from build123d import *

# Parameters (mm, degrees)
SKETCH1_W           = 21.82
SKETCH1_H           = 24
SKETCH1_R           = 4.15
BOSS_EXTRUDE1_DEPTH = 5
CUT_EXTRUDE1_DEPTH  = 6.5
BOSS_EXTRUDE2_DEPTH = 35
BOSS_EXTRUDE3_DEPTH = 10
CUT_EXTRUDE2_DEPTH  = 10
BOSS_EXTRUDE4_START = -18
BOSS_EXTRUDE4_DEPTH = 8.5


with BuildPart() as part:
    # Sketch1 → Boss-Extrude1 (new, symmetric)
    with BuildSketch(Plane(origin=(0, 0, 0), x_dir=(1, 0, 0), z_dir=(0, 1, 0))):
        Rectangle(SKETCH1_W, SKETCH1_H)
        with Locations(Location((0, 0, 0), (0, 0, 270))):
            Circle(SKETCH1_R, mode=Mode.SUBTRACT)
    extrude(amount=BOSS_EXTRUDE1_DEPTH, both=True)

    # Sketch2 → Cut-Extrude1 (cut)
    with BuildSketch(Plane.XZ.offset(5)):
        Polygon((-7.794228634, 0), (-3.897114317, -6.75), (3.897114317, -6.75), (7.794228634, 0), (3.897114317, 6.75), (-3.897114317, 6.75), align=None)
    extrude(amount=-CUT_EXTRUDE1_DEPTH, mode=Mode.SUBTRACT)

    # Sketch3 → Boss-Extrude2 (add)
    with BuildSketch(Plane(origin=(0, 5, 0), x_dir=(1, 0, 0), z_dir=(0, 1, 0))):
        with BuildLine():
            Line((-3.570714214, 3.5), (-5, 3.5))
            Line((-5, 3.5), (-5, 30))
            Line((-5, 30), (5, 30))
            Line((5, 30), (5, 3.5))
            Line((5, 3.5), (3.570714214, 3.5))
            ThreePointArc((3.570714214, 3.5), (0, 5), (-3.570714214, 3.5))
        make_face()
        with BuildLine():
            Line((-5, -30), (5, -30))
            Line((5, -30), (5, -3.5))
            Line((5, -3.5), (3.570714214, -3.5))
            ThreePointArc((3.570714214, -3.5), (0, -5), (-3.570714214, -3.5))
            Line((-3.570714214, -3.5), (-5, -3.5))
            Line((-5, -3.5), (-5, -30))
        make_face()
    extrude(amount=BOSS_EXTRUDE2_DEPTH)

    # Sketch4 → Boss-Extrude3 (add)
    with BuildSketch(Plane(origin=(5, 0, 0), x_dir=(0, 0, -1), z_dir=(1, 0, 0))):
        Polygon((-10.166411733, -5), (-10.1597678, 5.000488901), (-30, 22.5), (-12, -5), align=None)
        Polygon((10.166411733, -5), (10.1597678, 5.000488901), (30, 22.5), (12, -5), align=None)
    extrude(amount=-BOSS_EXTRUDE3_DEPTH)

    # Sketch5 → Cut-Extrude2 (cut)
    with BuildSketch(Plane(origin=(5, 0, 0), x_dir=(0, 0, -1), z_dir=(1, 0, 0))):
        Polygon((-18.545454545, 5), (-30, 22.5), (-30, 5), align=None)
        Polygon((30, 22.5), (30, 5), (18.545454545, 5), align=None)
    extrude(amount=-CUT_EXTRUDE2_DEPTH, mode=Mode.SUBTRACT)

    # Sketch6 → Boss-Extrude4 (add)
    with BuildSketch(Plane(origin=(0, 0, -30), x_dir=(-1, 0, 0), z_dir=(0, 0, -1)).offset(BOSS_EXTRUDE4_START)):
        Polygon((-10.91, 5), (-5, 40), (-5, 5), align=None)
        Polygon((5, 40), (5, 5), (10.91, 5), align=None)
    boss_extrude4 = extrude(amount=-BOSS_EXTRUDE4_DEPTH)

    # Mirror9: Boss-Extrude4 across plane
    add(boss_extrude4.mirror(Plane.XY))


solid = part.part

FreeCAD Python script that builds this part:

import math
import FreeCAD as App
import Part
import Sketcher
from FreeCAD import Vector
Q = App.Units.Quantity

doc = App.newDocument("Part")
body = doc.addObject("PartDesign::Body", "Body")

sketch1 = body.newObject("Sketcher::SketchObject", "Sketch")
sketch1.AttachmentSupport = (doc.getObject("XZ_Plane"), [""])
sketch1.MapMode = "FlatFace"
sketch1.addGeometry(Part.LineSegment(Vector(-10.91, -12, 0), Vector(-10.91, 12, 0)), False)
sketch1.addGeometry(Part.LineSegment(Vector(-10.91, 12, 0), Vector(10.91, 12, 0)), False)
sketch1.addGeometry(Part.LineSegment(Vector(10.91, 12, 0), Vector(10.91, -12, 0)), False)
sketch1.addGeometry(Part.LineSegment(Vector(10.91, -12, 0), Vector(-10.91, -12, 0)), False)
sketch1.addGeometry(Part.Circle(Vector(0, 0, 0), Vector(0, 0, 1), 4.15), False)
sketch1.addConstraint(Sketcher.Constraint("Coincident", 0, 2, 1, 1))
sketch1.addConstraint(Sketcher.Constraint("Coincident", 1, 2, 2, 1))
sketch1.addConstraint(Sketcher.Constraint("Coincident", 2, 2, 3, 1))
sketch1.addConstraint(Sketcher.Constraint("Coincident", 3, 2, 0, 1))
sketch1.addConstraint(Sketcher.Constraint("Vertical", 0))
sketch1.addConstraint(Sketcher.Constraint("Horizontal", 1))
sketch1.addConstraint(Sketcher.Constraint("Vertical", 2))
sketch1.addConstraint(Sketcher.Constraint("Horizontal", 3))
sketch1.addConstraint(Sketcher.Constraint("Coincident", 4, 3, -1, 1))
sketch1.addConstraint(Sketcher.Constraint("Symmetric", 0, 2, 2, 2, -1, 1))
sketch1.addConstraint(Sketcher.Constraint("Diameter", 4, 8.3))
sketch1.addConstraint(Sketcher.Constraint("DistanceY", 0, 1, 0, 2, 24.0))
sketch1.addConstraint(Sketcher.Constraint("DistanceX", 1, 1, 1, 2, 21.82))
pad1 = body.newObject("PartDesign::Pad", "Pad")
pad1.Profile = sketch1
pad1.Length = 10
pad1.Midplane = True

sketch2 = body.newObject("Sketcher::SketchObject", "Sketch001")
sketch2.AttachmentSupport = (doc.getObject("XZ_Plane"), [""])
sketch2.MapMode = "FlatFace"
sketch2.AttachmentOffset = App.Placement(Vector(0, 0, 5), App.Rotation())
sketch2.addGeometry(Part.LineSegment(Vector(-7.794229, 0, 0), Vector(-3.897114, -6.75, 0)), False)
sketch2.addGeometry(Part.LineSegment(Vector(-3.897114, -6.75, 0), Vector(3.897114, -6.75, 0)), False)
sketch2.addGeometry(Part.LineSegment(Vector(3.897114, -6.75, 0), Vector(7.794229, 0, 0)), False)
sketch2.addGeometry(Part.LineSegment(Vector(7.794229, 0, 0), Vector(3.897114, 6.75, 0)), False)
sketch2.addGeometry(Part.LineSegment(Vector(3.897114, 6.75, 0), Vector(-3.897114, 6.75, 0)), False)
sketch2.addGeometry(Part.LineSegment(Vector(-3.897114, 6.75, 0), Vector(-7.794229, 0, 0)), False)
sketch2.addConstraint(Sketcher.Constraint("Coincident", 0, 2, 1, 1))
sketch2.addConstraint(Sketcher.Constraint("Coincident", 1, 2, 2, 1))
sketch2.addConstraint(Sketcher.Constraint("Coincident", 2, 2, 3, 1))
sketch2.addConstraint(Sketcher.Constraint("Coincident", 3, 2, 4, 1))
sketch2.addConstraint(Sketcher.Constraint("Coincident", 4, 2, 5, 1))
sketch2.addConstraint(Sketcher.Constraint("Coincident", 5, 2, 0, 1))
sketch2.addConstraint(Sketcher.Constraint("Horizontal", 1))
sketch2.addConstraint(Sketcher.Constraint("Horizontal", 4))
sketch2.addConstraint(Sketcher.Constraint("Symmetric", 0, 2, 3, 2, -1, 1))
sketch2.addConstraint(Sketcher.Constraint("Symmetric", 2, 2, 5, 2, -1, 1))
sketch2.addConstraint(Sketcher.Constraint("PointOnObject", 2, 2, -1))
sketch2.addConstraint(Sketcher.Constraint("Parallel", 2, 5))
sketch2.addConstraint(Sketcher.Constraint("Vertical", 1, 2, 3, 2))
sketch2.addConstraint(Sketcher.Constraint("Angle", 0, Q("-60 deg")))
sketch2.addConstraint(Sketcher.Constraint("DistanceY", 1, 2, 3, 2, 13.5))
sketch2.addConstraint(Sketcher.Constraint("DistanceX", 1, 1, 1, 2, 7.794229))
pocket1 = body.newObject("PartDesign::Pocket", "Pocket")
pocket1.Profile = sketch2
pocket1.Length = 6.5

sketch3 = body.newObject("Sketcher::SketchObject", "Sketch002")
sketch3.AttachmentSupport = (doc.getObject("XZ_Plane"), [""])
sketch3.MapMode = "FlatFace"
sketch3.AttachmentOffset = App.Placement(Vector(0, 0, -5), App.Rotation())
sketch3.addGeometry(Part.LineSegment(Vector(-5, -3.5, 0), Vector(-3.570714, -3.5, 0)), False)
sketch3.addGeometry(Part.ArcOfCircle(Part.Circle(Vector(0, 0, 0), Vector(0, 0, 1), 5), math.radians(-135.572996), math.radians(-44.427004)), False)
sketch3.addGeometry(Part.LineSegment(Vector(3.570714, -3.5, 0), Vector(5, -3.5, 0)), False)
sketch3.addGeometry(Part.LineSegment(Vector(5, -3.5, 0), Vector(5, -30, 0)), False)
sketch3.addGeometry(Part.LineSegment(Vector(5, -30, 0), Vector(-5, -30, 0)), False)
sketch3.addGeometry(Part.LineSegment(Vector(-5, -30, 0), Vector(-5, -3.5, 0)), False)
sketch3.addGeometry(Part.LineSegment(Vector(-5, 30, 0), Vector(5, 30, 0)), False)
sketch3.addGeometry(Part.LineSegment(Vector(5, 30, 0), Vector(5, 3.5, 0)), False)
sketch3.addGeometry(Part.LineSegment(Vector(5, 3.5, 0), Vector(3.570714, 3.5, 0)), False)
sketch3.addGeometry(Part.ArcOfCircle(Part.Circle(Vector(0, 0, 0), Vector(0, 0, 1), 5), math.radians(44.427004), math.radians(135.572996)), False)
sketch3.addGeometry(Part.LineSegment(Vector(-3.570714, 3.5, 0), Vector(-5, 3.5, 0)), False)
sketch3.addGeometry(Part.LineSegment(Vector(-5, 3.5, 0), Vector(-5, 30, 0)), False)
sketch3.addConstraint(Sketcher.Constraint("Coincident", 0, 2, 1, 1))
sketch3.addConstraint(Sketcher.Constraint("Coincident", 1, 2, 2, 1))
sketch3.addConstraint(Sketcher.Constraint("Coincident", 2, 2, 3, 1))
sketch3.addConstraint(Sketcher.Constraint("Coincident", 3, 2, 4, 1))
sketch3.addConstraint(Sketcher.Constraint("Coincident", 4, 2, 5, 1))
sketch3.addConstraint(Sketcher.Constraint("Coincident", 5, 2, 0, 1))
sketch3.addConstraint(Sketcher.Constraint("Coincident", 6, 2, 7, 1))
sketch3.addConstraint(Sketcher.Constraint("Coincident", 7, 2, 8, 1))
sketch3.addConstraint(Sketcher.Constraint("Coincident", 8, 2, 9, 1))
sketch3.addConstraint(Sketcher.Constraint("Coincident", 9, 2, 10, 1))
sketch3.addConstraint(Sketcher.Constraint("Coincident", 10, 2, 11, 1))
sketch3.addConstraint(Sketcher.Constraint("Coincident", 11, 2, 6, 1))
sketch3.addConstraint(Sketcher.Constraint("Horizontal", 0))
sketch3.addConstraint(Sketcher.Constraint("Horizontal", 2))
sketch3.addConstraint(Sketcher.Constraint("Vertical", 3))
sketch3.addConstraint(Sketcher.Constraint("Horizontal", 4))
sketch3.addConstraint(Sketcher.Constraint("Vertical", 5))
sketch3.addConstraint(Sketcher.Constraint("Horizontal", 6))
sketch3.addConstraint(Sketcher.Constraint("Vertical", 7))
sketch3.addConstraint(Sketcher.Constraint("Horizontal", 8))
sketch3.addConstraint(Sketcher.Constraint("Horizontal", 10))
sketch3.addConstraint(Sketcher.Constraint("Vertical", 11))
sketch3.addConstraint(Sketcher.Constraint("Coincident", 1, 3, -1, 1))
sketch3.addConstraint(Sketcher.Constraint("Coincident", 9, 3, -1, 1))
sketch3.addConstraint(Sketcher.Constraint("Equal", 1, 9))
sketch3.addConstraint(Sketcher.Constraint("Symmetric", 4, 2, 6, 2, -1, 1))
sketch3.addConstraint(Sketcher.Constraint("Symmetric", 2, 2, 10, 2, -1, 1))
sketch3.addConstraint(Sketcher.Constraint("Symmetric", 2, 2, 5, 2, -2))
sketch3.addConstraint(Sketcher.Constraint("Horizontal", 8, 2, 9, 2))
sketch3.addConstraint(Sketcher.Constraint("Radius", 1, 5.0))
sketch3.addConstraint(Sketcher.Constraint("DistanceX", 4, 2, 4, 1, 10.0))
sketch3.addConstraint(Sketcher.Constraint("DistanceY", 3, 2, 3, 1, 26.5))
sketch3.addConstraint(Sketcher.Constraint("DistanceY", 3, 2, -1, 1, 30.0))
pad2 = body.newObject("PartDesign::Pad", "Pad001")
pad2.Profile = sketch3
pad2.Length = 35
pad2.Reversed = True

sketch4 = body.newObject("Sketcher::SketchObject", "Sketch003")
sketch4.AttachmentSupport = (doc.getObject("YZ_Plane"), [""])
sketch4.MapMode = "FlatFace"
sketch4.AttachmentOffset = App.Placement(Vector(0, 0, 5), App.Rotation())
sketch4.addGeometry(Part.LineSegment(Vector(-5, 10.166412, 0), Vector(5.000489, 10.159768, 0)), False)
sketch4.addGeometry(Part.LineSegment(Vector(5.000489, 10.159768, 0), Vector(22.5, 30, 0)), False)
sketch4.addGeometry(Part.LineSegment(Vector(22.5, 30, 0), Vector(-5, 12, 0)), False)
sketch4.addGeometry(Part.LineSegment(Vector(-5, 12, 0), Vector(-5, 10.166412, 0)), False)
sketch4.addGeometry(Part.LineSegment(Vector(5.000489, -10.159768, 0), Vector(-5, -10.166412, 0)), False)
sketch4.addGeometry(Part.LineSegment(Vector(-5, -10.166412, 0), Vector(-5, -12, 0)), False)
sketch4.addGeometry(Part.LineSegment(Vector(-5, -12, 0), Vector(22.5, -30, 0)), False)
sketch4.addGeometry(Part.LineSegment(Vector(22.5, -30, 0), Vector(5.000489, -10.159768, 0)), False)
sketch4.addConstraint(Sketcher.Constraint("Coincident", 0, 2, 1, 1))
sketch4.addConstraint(Sketcher.Constraint("Coincident", 1, 2, 2, 1))
sketch4.addConstraint(Sketcher.Constraint("Coincident", 2, 2, 3, 1))
sketch4.addConstraint(Sketcher.Constraint("Coincident", 3, 2, 0, 1))
sketch4.addConstraint(Sketcher.Constraint("Coincident", 4, 2, 5, 1))
sketch4.addConstraint(Sketcher.Constraint("Coincident", 5, 2, 6, 1))
sketch4.addConstraint(Sketcher.Constraint("Coincident", 6, 2, 7, 1))
sketch4.addConstraint(Sketcher.Constraint("Coincident", 7, 2, 4, 1))
sketch4.addConstraint(Sketcher.Constraint("Vertical", 3))
sketch4.addConstraint(Sketcher.Constraint("Vertical", 5))
sketch4.addConstraint(Sketcher.Constraint("Symmetric", 3, 2, 4, 2, -1))
sketch4.addConstraint(Sketcher.Constraint("Symmetric", 1, 2, 6, 2, -1))
sketch4.addConstraint(Sketcher.Constraint("Symmetric", 0, 2, 7, 2, -1))
sketch4.addConstraint(Sketcher.Constraint("Equal", 3, 5))
sketch4.addConstraint(Sketcher.Constraint("DistanceY", -1, 1, 1, 2, 30.0))
sketch4.addConstraint(Sketcher.Constraint("DistanceX", 2, 2, -1, 1, 5.0))
sketch4.addConstraint(Sketcher.Constraint("DistanceY", -1, 1, 2, 2, 12.0))
sketch4.addConstraint(Sketcher.Constraint("DistanceX", -1, 1, 1, 2, 22.5))
sketch4.addConstraint(Sketcher.Constraint("DistanceY", 3, 2, 3, 1, 1.833588))
sketch4.addConstraint(Sketcher.Constraint("Distance", 0, 10.000491))
sketch4.addConstraint(Sketcher.Constraint("DistanceY", 4, 2, 0, 2, 20.32618))
pad3 = body.newObject("PartDesign::Pad", "Pad002")
pad3.Profile = sketch4
pad3.Length = 10
pad3.Reversed = True

sketch5 = body.newObject("Sketcher::SketchObject", "Sketch004")
sketch5.AttachmentSupport = (doc.getObject("YZ_Plane"), [""])
sketch5.MapMode = "FlatFace"
sketch5.AttachmentOffset = App.Placement(Vector(0, 0, 5), App.Rotation())
sketch5.addGeometry(Part.LineSegment(Vector(5, 18.545455, 0), Vector(22.5, 30, 0)), False)
sketch5.addGeometry(Part.LineSegment(Vector(22.5, 30, 0), Vector(5, 30, 0)), False)
sketch5.addGeometry(Part.LineSegment(Vector(5, 30, 0), Vector(5, 18.545455, 0)), False)
sketch5.addGeometry(Part.LineSegment(Vector(5, -30, 0), Vector(22.5, -30, 0)), False)
sketch5.addGeometry(Part.LineSegment(Vector(22.5, -30, 0), Vector(5, -18.545455, 0)), False)
sketch5.addGeometry(Part.LineSegment(Vector(5, -18.545455, 0), Vector(5, -30, 0)), False)
sketch5.addConstraint(Sketcher.Constraint("Coincident", 0, 2, 1, 1))
sketch5.addConstraint(Sketcher.Constraint("Coincident", 1, 2, 2, 1))
sketch5.addConstraint(Sketcher.Constraint("Coincident", 2, 2, 0, 1))
sketch5.addConstraint(Sketcher.Constraint("Coincident", 3, 2, 4, 1))
sketch5.addConstraint(Sketcher.Constraint("Coincident", 4, 2, 5, 1))
sketch5.addConstraint(Sketcher.Constraint("Coincident", 5, 2, 3, 1))
sketch5.addConstraint(Sketcher.Constraint("Horizontal", 1))
sketch5.addConstraint(Sketcher.Constraint("Vertical", 2))
sketch5.addConstraint(Sketcher.Constraint("Horizontal", 3))
sketch5.addConstraint(Sketcher.Constraint("Vertical", 5))
sketch5.addConstraint(Sketcher.Constraint("Symmetric", 0, 2, 3, 2, -1))
sketch5.addConstraint(Sketcher.Constraint("Symmetric", 2, 2, 4, 2, -1))
sketch5.addConstraint(Sketcher.Constraint("DistanceX", 1, 2, 1, 1, 17.5))
sketch5.addConstraint(Sketcher.Constraint("DistanceY", -1, 1, 0, 2, 30.0))
sketch5.addConstraint(Sketcher.Constraint("DistanceX", -1, 1, 1, 2, 5.0))
sketch5.addConstraint(Sketcher.Constraint("DistanceY", 2, 2, 2, 1, 11.454545))
pocket2 = body.newObject("PartDesign::Pocket", "Pocket001")
pocket2.Profile = sketch5
pocket2.Length = 10

sketch6 = body.newObject("Sketcher::SketchObject", "Sketch005")
sketch6.AttachmentSupport = (doc.getObject("XY_Plane"), [""])
sketch6.MapMode = "FlatFace"
sketch6.AttachmentOffset = App.Placement(Vector(0, 0, -12), App.Rotation())
sketch6.addGeometry(Part.LineSegment(Vector(5, 40, 0), Vector(10.91, 5, 0)), False)
sketch6.addGeometry(Part.LineSegment(Vector(10.91, 5, 0), Vector(5, 5, 0)), False)
sketch6.addGeometry(Part.LineSegment(Vector(5, 5, 0), Vector(5, 40, 0)), False)
sketch6.addGeometry(Part.LineSegment(Vector(-5, 40, 0), Vector(-5, 5, 0)), False)
sketch6.addGeometry(Part.LineSegment(Vector(-5, 5, 0), Vector(-10.91, 5, 0)), False)
sketch6.addGeometry(Part.LineSegment(Vector(-10.91, 5, 0), Vector(-5, 40, 0)), False)
sketch6.addConstraint(Sketcher.Constraint("Coincident", 0, 2, 1, 1))
sketch6.addConstraint(Sketcher.Constraint("Coincident", 1, 2, 2, 1))
sketch6.addConstraint(Sketcher.Constraint("Coincident", 2, 2, 0, 1))
sketch6.addConstraint(Sketcher.Constraint("Coincident", 3, 2, 4, 1))
sketch6.addConstraint(Sketcher.Constraint("Coincident", 4, 2, 5, 1))
sketch6.addConstraint(Sketcher.Constraint("Coincident", 5, 2, 3, 1))
sketch6.addConstraint(Sketcher.Constraint("Horizontal", 1))
sketch6.addConstraint(Sketcher.Constraint("Vertical", 2))
sketch6.addConstraint(Sketcher.Constraint("Vertical", 3))
sketch6.addConstraint(Sketcher.Constraint("Horizontal", 4))
sketch6.addConstraint(Sketcher.Constraint("Symmetric", 1, 2, 3, 2, -2))
sketch6.addConstraint(Sketcher.Constraint("Horizontal", 2, 2, 5, 2))
sketch6.addConstraint(Sketcher.Constraint("Equal", 1, 4))
sketch6.addConstraint(Sketcher.Constraint("DistanceY", 2, 1, 2, 2, 35.0))
sketch6.addConstraint(Sketcher.Constraint("DistanceY", -1, 1, 0, 2, 5.0))
sketch6.addConstraint(Sketcher.Constraint("DistanceX", -1, 1, 1, 2, 5.0))
sketch6.addConstraint(Sketcher.Constraint("DistanceX", 1, 2, 1, 1, 5.91))
pad4 = body.newObject("PartDesign::Pad", "Pad003")
pad4.Profile = sketch6
pad4.Length = 8.5
doc.recompute()

mirrored = body.newObject("PartDesign::Mirrored", "Mirrored")
mirrored.Originals = [pad4]
mirrored.MirrorPlane = (doc.getObject("XY_Plane"), [""])
body.Tip = mirrored

doc.recompute()
